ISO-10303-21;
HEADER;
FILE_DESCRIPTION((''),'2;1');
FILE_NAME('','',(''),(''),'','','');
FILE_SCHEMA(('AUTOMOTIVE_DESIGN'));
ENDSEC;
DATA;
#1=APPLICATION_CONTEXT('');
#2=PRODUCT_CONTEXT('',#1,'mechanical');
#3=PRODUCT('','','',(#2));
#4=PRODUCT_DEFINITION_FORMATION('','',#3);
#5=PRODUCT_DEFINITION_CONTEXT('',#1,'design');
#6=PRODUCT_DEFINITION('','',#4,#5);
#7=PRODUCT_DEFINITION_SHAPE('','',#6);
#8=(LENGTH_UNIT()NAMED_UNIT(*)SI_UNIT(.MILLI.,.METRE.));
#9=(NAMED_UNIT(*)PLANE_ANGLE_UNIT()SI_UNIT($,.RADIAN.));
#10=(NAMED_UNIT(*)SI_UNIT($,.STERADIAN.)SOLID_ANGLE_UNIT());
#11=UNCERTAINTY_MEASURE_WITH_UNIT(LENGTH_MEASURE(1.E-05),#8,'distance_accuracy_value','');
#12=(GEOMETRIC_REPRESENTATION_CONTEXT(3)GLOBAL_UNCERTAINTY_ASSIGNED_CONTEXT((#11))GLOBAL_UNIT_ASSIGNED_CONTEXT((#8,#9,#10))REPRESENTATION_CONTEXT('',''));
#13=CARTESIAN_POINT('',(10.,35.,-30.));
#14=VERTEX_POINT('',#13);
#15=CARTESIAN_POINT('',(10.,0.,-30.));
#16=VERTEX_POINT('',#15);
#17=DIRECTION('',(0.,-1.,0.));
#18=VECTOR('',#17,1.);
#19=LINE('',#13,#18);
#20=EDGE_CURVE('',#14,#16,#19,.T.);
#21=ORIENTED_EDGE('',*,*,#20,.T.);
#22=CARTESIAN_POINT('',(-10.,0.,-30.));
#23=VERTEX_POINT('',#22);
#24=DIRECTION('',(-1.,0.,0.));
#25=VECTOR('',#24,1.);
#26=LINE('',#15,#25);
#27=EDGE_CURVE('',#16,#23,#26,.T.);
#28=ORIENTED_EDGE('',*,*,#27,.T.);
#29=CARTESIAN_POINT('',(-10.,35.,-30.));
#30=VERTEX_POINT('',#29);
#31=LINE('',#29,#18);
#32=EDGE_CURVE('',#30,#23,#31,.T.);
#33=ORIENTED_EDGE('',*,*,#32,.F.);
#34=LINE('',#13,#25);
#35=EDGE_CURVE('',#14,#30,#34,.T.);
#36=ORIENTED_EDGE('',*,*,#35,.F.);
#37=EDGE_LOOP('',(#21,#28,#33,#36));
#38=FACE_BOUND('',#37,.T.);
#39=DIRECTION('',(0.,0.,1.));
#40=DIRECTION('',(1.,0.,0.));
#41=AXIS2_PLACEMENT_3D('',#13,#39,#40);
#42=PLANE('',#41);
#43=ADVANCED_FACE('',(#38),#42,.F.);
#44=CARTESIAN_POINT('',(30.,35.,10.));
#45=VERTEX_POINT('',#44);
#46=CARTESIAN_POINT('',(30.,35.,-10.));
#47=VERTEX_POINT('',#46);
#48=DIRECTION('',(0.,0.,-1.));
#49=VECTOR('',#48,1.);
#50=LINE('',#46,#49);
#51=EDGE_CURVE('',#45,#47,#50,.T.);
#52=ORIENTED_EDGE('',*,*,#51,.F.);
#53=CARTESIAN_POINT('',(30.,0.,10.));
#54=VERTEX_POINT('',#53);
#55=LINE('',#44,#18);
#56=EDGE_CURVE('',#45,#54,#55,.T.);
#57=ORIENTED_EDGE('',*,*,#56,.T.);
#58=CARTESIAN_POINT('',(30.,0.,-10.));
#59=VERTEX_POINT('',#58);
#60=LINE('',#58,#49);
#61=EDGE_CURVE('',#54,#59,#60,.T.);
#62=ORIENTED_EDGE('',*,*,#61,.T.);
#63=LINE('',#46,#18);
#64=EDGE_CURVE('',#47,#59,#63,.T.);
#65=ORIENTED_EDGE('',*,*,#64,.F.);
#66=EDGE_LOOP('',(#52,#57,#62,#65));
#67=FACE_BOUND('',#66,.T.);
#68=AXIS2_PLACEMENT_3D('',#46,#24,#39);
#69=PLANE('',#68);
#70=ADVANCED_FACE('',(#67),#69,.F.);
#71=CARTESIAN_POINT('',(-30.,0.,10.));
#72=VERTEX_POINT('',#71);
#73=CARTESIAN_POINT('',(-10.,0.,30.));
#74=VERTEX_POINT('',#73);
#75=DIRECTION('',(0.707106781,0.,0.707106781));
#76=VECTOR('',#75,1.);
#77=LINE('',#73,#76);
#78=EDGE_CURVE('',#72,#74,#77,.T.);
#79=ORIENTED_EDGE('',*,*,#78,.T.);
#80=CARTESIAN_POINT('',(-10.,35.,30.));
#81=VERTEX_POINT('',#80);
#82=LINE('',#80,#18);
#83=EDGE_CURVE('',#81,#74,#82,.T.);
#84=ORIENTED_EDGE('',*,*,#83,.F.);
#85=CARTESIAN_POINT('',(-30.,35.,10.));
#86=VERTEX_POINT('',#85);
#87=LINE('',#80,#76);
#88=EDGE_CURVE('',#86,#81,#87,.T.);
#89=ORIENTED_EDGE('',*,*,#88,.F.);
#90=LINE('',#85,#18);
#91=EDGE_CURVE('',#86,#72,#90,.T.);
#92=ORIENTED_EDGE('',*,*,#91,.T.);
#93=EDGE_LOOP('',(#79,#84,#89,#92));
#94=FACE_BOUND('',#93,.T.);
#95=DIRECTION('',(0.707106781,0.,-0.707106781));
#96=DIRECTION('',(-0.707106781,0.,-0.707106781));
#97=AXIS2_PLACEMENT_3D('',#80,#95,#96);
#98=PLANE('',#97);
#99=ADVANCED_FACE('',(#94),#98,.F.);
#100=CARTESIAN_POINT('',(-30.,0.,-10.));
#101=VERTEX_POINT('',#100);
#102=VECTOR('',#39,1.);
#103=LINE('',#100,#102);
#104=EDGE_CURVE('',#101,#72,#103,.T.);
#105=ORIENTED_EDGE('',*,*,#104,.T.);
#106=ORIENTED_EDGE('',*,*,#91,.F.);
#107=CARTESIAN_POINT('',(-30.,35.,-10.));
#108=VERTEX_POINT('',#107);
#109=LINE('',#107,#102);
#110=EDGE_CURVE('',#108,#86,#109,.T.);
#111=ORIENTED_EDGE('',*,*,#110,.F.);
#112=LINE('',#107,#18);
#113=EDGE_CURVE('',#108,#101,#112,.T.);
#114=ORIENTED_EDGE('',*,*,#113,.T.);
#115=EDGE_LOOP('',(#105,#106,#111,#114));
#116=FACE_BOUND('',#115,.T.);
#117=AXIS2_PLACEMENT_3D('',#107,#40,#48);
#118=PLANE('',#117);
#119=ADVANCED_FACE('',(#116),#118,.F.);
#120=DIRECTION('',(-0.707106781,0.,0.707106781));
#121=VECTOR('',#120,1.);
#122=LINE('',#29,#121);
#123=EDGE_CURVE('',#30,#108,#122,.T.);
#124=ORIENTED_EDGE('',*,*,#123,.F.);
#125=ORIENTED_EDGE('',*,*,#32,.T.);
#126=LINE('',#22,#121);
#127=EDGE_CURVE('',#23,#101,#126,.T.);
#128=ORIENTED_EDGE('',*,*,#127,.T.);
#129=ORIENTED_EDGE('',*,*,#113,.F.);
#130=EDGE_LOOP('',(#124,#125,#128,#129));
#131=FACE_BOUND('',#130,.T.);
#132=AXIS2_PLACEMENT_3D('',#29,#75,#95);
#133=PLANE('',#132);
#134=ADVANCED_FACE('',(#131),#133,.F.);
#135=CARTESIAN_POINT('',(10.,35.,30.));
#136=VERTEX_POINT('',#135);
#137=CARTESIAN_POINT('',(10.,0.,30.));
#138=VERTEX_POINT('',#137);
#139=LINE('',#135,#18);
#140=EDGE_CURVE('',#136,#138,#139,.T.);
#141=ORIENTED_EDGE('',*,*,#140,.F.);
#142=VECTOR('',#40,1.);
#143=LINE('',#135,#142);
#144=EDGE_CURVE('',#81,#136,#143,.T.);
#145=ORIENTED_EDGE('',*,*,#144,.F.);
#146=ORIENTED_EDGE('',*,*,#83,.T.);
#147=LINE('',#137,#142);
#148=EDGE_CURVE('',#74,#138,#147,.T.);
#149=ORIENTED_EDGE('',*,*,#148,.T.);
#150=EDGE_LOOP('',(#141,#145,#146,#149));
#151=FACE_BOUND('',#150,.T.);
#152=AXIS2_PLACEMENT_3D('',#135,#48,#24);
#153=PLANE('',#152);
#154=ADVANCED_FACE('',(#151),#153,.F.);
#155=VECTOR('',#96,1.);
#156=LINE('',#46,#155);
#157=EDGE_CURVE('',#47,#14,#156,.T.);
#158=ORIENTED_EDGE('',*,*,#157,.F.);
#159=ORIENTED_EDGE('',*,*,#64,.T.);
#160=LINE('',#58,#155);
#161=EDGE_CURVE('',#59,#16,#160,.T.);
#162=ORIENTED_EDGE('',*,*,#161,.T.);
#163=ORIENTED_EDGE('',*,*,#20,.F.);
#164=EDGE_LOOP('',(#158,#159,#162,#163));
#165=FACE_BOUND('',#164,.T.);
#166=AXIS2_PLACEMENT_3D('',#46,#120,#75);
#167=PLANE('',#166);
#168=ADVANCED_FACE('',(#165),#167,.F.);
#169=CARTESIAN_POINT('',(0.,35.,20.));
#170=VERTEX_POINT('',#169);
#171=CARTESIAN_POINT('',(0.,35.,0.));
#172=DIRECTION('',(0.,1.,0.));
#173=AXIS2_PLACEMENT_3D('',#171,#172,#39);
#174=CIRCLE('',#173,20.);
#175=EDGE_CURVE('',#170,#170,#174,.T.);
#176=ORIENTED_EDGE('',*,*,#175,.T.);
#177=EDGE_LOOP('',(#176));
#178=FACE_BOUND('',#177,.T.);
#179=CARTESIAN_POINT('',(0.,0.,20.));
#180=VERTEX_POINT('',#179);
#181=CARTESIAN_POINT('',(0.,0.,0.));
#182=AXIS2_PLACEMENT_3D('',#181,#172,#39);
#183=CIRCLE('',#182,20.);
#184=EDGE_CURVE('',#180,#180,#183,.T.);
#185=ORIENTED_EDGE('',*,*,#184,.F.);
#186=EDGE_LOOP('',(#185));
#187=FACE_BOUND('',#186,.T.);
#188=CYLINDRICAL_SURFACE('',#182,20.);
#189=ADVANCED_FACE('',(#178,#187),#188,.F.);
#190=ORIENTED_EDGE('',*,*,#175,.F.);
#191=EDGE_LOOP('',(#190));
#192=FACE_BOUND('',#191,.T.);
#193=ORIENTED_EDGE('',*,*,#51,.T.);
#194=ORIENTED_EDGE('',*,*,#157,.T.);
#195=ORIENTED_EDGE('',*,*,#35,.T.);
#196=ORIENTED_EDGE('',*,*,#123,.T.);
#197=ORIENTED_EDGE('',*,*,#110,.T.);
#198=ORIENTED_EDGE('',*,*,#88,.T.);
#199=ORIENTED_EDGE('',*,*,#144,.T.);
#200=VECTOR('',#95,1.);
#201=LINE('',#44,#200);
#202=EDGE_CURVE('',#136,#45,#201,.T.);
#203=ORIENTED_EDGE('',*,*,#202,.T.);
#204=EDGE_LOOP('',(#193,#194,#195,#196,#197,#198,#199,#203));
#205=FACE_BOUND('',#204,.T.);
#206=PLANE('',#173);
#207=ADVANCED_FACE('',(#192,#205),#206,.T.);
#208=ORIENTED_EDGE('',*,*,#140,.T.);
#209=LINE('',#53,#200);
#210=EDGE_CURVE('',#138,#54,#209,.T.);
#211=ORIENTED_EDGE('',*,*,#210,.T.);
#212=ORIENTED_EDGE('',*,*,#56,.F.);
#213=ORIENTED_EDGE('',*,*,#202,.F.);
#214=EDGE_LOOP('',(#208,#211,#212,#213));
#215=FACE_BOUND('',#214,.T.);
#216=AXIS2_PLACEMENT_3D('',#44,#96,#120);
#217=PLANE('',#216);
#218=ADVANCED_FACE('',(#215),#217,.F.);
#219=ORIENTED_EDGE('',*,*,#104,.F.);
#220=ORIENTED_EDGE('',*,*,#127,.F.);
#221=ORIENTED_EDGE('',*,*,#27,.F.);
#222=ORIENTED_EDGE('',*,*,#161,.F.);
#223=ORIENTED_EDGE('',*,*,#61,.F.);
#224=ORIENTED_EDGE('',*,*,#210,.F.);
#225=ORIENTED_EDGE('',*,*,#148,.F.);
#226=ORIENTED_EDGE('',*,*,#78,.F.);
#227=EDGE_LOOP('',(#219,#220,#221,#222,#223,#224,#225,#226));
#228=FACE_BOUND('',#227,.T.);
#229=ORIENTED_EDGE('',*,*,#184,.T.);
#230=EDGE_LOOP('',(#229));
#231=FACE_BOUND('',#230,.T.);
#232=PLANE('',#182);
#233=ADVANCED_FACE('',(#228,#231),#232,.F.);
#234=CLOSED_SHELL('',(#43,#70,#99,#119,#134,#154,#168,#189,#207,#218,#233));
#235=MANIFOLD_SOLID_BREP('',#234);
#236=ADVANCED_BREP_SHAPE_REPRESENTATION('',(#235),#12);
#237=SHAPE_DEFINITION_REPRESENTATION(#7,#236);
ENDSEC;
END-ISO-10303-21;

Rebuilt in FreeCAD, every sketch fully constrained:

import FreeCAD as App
import Part
import Sketcher
Q = App.Units.Quantity


def add_polygon(sketch, points):
    """Adds a closed chain of lines whose ends are joined by coincident constraints."""
    first, n = sketch.GeometryCount, len(points)
    for a, b in zip(points, points[1:] + points[:1]):
        sketch.addGeometry(Part.LineSegment(App.Vector(*a, 0), App.Vector(*b, 0)), False)
    for i in range(n):
        sketch.addConstraint(Sketcher.Constraint("Coincident", first + i, 2, first + (i + 1) % n, 1))

doc = App.newDocument("Part")
body = doc.addObject("PartDesign::Body", "Body")

# Sketch on XZ plane
sketch1 = doc.addObject("Sketcher::SketchObject", "Sketch")
body.addObject(sketch1)
sketch1.AttachmentSupport = (doc.XZ_Plane, [""])
sketch1.MapMode = "FlatFace"
add_polygon(sketch1, [(30, -10), (10, -30), (-10, -30), (-30, -10), (-30, 10), (-10, 30), (10, 30), (30, 10)])  # lines 0-7
sketch1.addConstraint([
    Sketcher.Constraint("Horizontal", 1),
    Sketcher.Constraint("Vertical", 3),
    Sketcher.Constraint("Horizontal", 5),
    Sketcher.Constraint("Vertical", 7),
    Sketcher.Constraint("Symmetric", 0, 2, 4, 2, -1, 1),
    Sketcher.Constraint("Symmetric", 2, 2, 6, 2, -1, 1),
    Sketcher.Constraint("Perpendicular", 0, 2),
    Sketcher.Constraint("Perpendicular", 2, 4),
    Sketcher.Constraint("Perpendicular", 4, 6),
    Sketcher.Constraint("Horizontal", 3, 2, 6, 2),
    Sketcher.Constraint("Vertical", 1, 2, 4, 2),
    Sketcher.Constraint("Equal", 5, 3),
    Sketcher.Constraint("DistanceX", 1, 2, 1, 1, Q("20 mm")),
    Sketcher.Constraint("DistanceY", 0, 2, -1, 1, Q("30 mm")),
])
pad1 = doc.addObject("PartDesign::Pad", "Pad")
body.addObject(pad1)
pad1.Profile = sketch1
pad1.Length = 35
pad1.Reversed = True

# Sketch on XZ plane
sketch2 = doc.addObject("Sketcher::SketchObject", "Sketch001")
body.addObject(sketch2)
sketch2.AttachmentSupport = (doc.XZ_Plane, [""])
sketch2.MapMode = "FlatFace"
sketch2.AttachmentOffset = App.Placement(App.Vector(0, 0, -35), App.Rotation())
sketch2.addGeometry(Part.Circle(App.Vector(0, 0, 0), App.Vector(0, 0, 1), 20), False)
sketch2.addConstraint([
    Sketcher.Constraint("Coincident", 0, 3, -1, 1),
    Sketcher.Constraint("Diameter", 0, Q("40 mm")),
])
pocket1 = doc.addObject("PartDesign::Pocket", "Pocket")
body.addObject(pocket1)
pocket1.Profile = sketch2
pocket1.Type = "ThroughAll"
pocket1.Reversed = True

doc.recompute()
